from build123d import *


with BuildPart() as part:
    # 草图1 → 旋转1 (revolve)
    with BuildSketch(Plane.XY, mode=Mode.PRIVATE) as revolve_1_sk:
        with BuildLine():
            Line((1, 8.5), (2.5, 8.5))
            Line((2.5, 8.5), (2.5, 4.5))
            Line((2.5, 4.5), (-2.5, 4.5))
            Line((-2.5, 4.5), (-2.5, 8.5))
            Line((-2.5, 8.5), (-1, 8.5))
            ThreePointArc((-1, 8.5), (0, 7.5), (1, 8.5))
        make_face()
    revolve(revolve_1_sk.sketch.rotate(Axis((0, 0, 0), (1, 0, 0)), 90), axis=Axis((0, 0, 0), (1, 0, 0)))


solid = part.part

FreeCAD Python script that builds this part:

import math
import FreeCAD as App
import Part
import Sketcher
Q = App.Units.Quantity

doc = App.newDocument("Part")
body = doc.addObject("PartDesign::Body", "Body")

# Sketch on XY plane
sketch1 = body.newObject("Sketcher::SketchObject", "Sketch")
sketch1.AttachmentSupport = (doc.getObject("XY_Plane"), [""])
sketch1.MapMode = "FlatFace"
sketch1.addGeometry(Part.LineSegment(App.Vector(2.5, 8.5, 0), App.Vector(1, 8.5, 0)), False)
sketch1.addGeometry(Part.ArcOfCircle(Part.Circle(App.Vector(0, 8.5, 0), App.Vector(0, 0, 1), 1), math.radians(180), math.radians(360)), False)
sketch1.addGeometry(Part.LineSegment(App.Vector(-1, 8.5, 0), App.Vector(-2.5, 8.5, 0)), False)
sketch1.addGeometry(Part.LineSegment(App.Vector(-2.5, 8.5, 0), App.Vector(-2.5, 4.5, 0)), False)
sketch1.addGeometry(Part.LineSegment(App.Vector(-2.5, 4.5, 0), App.Vector(2.5, 4.5, 0)), False)
sketch1.addGeometry(Part.LineSegment(App.Vector(2.5, 4.5, 0), App.Vector(2.5, 8.5, 0)), False)
sketch1.addConstraint(Sketcher.Constraint("Coincident", 0, 2, 1, 2))
sketch1.addConstraint(Sketcher.Constraint("Coincident", 1, 1, 2, 1))
sketch1.addConstraint(Sketcher.Constraint("Coincident", 2, 2, 3, 1))
sketch1.addConstraint(Sketcher.Constraint("Coincident", 3, 2, 4, 1))
sketch1.addConstraint(Sketcher.Constraint("Coincident", 4, 2, 5, 1))
sketch1.addConstraint(Sketcher.Constraint("Coincident", 5, 2, 0, 1))
sketch1.addConstraint(Sketcher.Constraint("Horizontal", 0))
sketch1.addConstraint(Sketcher.Constraint("Horizontal", 2))
sketch1.addConstraint(Sketcher.Constraint("Vertical", 3))
sketch1.addConstraint(Sketcher.Constraint("Horizontal", 4))
sketch1.addConstraint(Sketcher.Constraint("Vertical", 5))
sketch1.addConstraint(Sketcher.Constraint("Symmetric", 0, 2, 1, 1, -2))
sketch1.addConstraint(Sketcher.Constraint("Horizontal", 1, 3, 0, 2))
sketch1.addConstraint(Sketcher.Constraint("Equal", 0, 2))
sketch1.addConstraint(Sketcher.Constraint("Radius", 1, Q("1 mm")))
sketch1.addConstraint(Sketcher.Constraint("DistanceX", 4, 1, 4, 2, Q("5 mm")))
sketch1.addConstraint(Sketcher.Constraint("DistanceY", 3, 2, 3, 1, Q("4 mm")))
sketch1.addConstraint(Sketcher.Constraint("DistanceY", -1, 1, 1, 3, Q("8.5 mm")))
revolution = body.newObject("PartDesign::Revolution", "Revolution")
revolution.Profile = sketch1
revolution.ReferenceAxis = (sketch1, ["H_Axis"])
revolution.Angle = 360

doc.recompute()
